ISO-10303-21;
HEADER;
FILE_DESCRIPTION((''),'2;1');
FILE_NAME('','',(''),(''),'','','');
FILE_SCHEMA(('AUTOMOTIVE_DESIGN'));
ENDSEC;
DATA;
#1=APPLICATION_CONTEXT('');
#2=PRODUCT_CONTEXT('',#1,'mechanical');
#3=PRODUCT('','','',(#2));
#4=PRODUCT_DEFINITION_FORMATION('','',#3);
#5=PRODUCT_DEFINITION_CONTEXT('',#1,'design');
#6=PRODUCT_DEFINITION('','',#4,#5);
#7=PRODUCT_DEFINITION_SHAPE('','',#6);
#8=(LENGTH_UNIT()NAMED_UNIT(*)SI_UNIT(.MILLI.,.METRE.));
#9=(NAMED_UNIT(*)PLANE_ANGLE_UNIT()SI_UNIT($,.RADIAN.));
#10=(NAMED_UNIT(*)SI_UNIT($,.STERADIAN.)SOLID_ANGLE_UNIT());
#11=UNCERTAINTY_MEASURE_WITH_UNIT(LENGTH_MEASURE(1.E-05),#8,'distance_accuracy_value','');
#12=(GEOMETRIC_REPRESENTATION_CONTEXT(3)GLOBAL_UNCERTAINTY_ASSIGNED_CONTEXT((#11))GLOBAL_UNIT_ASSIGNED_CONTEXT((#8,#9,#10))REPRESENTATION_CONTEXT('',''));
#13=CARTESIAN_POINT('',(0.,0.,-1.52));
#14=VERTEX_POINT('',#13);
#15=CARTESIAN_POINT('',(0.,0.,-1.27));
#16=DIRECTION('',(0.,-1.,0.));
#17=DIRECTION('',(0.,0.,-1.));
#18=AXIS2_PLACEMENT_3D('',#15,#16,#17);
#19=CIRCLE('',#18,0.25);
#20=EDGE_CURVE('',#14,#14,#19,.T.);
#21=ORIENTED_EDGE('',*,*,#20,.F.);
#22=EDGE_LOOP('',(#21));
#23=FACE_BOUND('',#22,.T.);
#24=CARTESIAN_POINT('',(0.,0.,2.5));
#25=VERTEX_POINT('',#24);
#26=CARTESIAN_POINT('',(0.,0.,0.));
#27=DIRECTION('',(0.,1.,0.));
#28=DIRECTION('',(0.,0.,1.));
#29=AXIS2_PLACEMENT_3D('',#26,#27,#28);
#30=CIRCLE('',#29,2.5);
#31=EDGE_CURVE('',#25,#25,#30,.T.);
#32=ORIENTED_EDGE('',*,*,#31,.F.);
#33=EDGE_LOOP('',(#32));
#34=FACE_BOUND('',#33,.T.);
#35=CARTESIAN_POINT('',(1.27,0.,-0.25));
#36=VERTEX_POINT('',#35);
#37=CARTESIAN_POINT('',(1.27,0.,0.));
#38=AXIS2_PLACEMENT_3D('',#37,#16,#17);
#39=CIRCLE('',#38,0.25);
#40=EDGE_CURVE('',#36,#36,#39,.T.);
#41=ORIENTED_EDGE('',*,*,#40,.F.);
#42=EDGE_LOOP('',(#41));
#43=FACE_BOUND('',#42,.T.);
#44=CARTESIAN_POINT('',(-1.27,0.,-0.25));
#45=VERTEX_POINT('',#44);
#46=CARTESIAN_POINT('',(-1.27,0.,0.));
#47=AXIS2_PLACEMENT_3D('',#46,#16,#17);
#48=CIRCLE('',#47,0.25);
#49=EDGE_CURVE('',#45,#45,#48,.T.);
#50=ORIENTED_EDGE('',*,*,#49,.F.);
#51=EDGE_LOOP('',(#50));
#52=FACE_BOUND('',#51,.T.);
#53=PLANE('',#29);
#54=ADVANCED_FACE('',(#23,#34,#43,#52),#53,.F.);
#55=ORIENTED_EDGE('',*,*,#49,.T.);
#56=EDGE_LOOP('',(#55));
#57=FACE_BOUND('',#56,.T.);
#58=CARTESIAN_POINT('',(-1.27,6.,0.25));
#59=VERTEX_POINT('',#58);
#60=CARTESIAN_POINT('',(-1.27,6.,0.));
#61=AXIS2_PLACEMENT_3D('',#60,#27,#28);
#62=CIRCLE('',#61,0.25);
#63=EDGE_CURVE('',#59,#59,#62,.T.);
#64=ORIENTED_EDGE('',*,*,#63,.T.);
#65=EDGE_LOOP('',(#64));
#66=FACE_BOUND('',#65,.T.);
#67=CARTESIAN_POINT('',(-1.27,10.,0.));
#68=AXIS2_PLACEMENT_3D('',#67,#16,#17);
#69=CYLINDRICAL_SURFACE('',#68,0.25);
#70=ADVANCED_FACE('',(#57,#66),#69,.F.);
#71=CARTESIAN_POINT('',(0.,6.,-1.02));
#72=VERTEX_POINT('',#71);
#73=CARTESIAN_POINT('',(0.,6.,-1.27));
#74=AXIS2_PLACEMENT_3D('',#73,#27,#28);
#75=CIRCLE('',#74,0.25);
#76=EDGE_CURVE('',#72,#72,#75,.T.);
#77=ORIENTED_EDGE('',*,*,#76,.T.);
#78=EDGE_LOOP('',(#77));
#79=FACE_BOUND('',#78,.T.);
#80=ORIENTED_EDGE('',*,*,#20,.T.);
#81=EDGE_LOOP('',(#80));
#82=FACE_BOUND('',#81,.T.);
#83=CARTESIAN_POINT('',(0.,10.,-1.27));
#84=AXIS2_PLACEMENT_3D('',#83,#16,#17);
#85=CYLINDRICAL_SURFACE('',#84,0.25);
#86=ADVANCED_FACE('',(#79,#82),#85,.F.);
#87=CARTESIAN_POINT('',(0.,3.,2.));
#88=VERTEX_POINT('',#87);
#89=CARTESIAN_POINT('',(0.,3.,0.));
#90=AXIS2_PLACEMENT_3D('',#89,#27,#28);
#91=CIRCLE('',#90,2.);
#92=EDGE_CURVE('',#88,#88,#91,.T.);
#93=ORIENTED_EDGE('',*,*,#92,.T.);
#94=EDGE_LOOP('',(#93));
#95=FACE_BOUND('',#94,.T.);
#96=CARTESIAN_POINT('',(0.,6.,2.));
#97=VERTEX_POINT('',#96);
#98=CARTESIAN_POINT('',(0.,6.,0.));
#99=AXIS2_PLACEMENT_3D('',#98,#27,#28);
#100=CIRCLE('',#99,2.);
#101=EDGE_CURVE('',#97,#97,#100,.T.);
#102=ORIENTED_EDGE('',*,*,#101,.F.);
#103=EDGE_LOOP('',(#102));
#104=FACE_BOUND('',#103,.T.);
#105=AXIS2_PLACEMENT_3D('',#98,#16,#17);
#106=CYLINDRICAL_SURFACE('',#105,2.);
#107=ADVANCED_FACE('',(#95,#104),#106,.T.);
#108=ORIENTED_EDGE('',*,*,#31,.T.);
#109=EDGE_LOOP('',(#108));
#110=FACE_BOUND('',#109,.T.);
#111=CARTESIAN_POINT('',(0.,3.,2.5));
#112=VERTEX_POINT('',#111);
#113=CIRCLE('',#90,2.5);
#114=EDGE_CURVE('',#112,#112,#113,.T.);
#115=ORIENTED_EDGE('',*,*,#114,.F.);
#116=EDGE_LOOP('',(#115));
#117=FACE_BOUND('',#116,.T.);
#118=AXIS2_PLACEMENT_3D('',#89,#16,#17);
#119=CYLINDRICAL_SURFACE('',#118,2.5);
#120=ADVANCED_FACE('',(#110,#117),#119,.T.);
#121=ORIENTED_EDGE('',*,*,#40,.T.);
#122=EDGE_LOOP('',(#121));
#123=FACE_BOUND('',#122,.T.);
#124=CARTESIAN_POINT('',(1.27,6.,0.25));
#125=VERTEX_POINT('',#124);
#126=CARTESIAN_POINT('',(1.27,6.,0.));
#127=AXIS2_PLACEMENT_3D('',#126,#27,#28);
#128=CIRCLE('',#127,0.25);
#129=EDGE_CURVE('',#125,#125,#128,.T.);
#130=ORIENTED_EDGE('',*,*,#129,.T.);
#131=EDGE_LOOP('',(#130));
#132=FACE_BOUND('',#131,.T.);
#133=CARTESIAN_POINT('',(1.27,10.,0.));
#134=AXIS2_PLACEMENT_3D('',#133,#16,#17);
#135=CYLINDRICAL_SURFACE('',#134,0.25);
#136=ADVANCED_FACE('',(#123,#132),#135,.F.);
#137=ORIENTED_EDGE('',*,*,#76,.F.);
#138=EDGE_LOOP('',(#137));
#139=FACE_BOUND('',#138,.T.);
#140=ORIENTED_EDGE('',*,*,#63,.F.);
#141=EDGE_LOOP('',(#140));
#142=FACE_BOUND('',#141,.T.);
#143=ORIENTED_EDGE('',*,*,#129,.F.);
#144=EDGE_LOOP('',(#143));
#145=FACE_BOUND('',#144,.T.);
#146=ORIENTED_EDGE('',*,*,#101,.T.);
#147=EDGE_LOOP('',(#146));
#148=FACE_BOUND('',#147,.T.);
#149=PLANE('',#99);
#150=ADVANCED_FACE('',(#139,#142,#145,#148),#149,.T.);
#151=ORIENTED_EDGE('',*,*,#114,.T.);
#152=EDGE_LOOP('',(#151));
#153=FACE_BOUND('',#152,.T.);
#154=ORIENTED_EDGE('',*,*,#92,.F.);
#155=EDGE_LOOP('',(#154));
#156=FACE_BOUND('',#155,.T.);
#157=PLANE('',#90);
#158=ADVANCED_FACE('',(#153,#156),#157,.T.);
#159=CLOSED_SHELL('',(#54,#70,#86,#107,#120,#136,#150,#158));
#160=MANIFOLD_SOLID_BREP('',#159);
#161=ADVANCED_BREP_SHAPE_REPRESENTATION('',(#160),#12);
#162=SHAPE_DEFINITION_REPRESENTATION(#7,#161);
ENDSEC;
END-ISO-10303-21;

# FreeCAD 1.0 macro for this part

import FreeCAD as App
import Part
import Sketcher

doc = App.newDocument("Part")
params = doc.addObject("Spreadsheet::Sheet", "Params")
for row, (alias, value) in enumerate([
    ("sketch1_diameter", "5 mm"),
    ("pad1_length", "3 mm"),
    ("sketch2_diameter", "4 mm"),
    ("pad2_length", "3 mm"),
    ("sketch3_diameter", "0.5 mm"),
    ("pocket1_length", "10 mm"),
], start=1):
    params.set(f"A{row}", alias)
    params.set(f"B{row}", "=" + value)
    params.setAlias(f"B{row}", alias)

body = doc.addObject("PartDesign::Body", "Body")

sketch1 = body.newObject("Sketcher::SketchObject", "Sketch")
sketch1.AttachmentSupport = (doc.getObject("XZ_Plane"), [""])
sketch1.MapMode = "FlatFace"
sketch1.addGeometry(Part.Circle(App.Vector(0, 0, 0), App.Vector(0, 0, 1), 2.5), False)
sketch1.addConstraint([
    Sketcher.Constraint("Coincident", 0, 3, -1, 1),
    Sketcher.Constraint("Diameter", 0, 5.0),
])
sketch1.setExpression("Constraints[1]", "Params.sketch1_diameter")
pad1 = body.newObject("PartDesign::Pad", "Pad")
pad1.Profile = sketch1
pad1.setExpression("Length", "Params.pad1_length")
pad1.Reversed = True

sketch2 = body.newObject("Sketcher::SketchObject", "Sketch001")
sketch2.AttachmentSupport = (doc.getObject("XZ_Plane"), [""])
sketch2.MapMode = "FlatFace"
sketch2.AttachmentOffset = App.Placement(App.Vector(0, 0, -3), App.Rotation())
sketch2.addGeometry(Part.Circle(App.Vector(0, 0, 0), App.Vector(0, 0, 1), 2), False)
sketch2.addConstraint([
    Sketcher.Constraint("Coincident", 0, 3, -1, 1),
    Sketcher.Constraint("Diameter", 0, 4.0),
])
sketch2.setExpression("Constraints[1]", "Params.sketch2_diameter")
pad2 = body.newObject("PartDesign::Pad", "Pad001")
pad2.Profile = sketch2
pad2.setExpression("Length", "Params.pad2_length")
pad2.Reversed = True

sketch3 = body.newObject("Sketcher::SketchObject", "Sketch002")
sketch3.AttachmentSupport = (doc.getObject("XZ_Plane"), [""])
sketch3.MapMode = "FlatFace"
sketch3.addGeometry([
    Part.Circle(App.Vector(0, -1.27, 0), App.Vector(0, 0, 1), 0.25),
    Part.Circle(App.Vector(1.27, 0, 0), App.Vector(0, 0, 1), 0.25),
    Part.Circle(App.Vector(-1.27, 0, 0), App.Vector(0, 0, 1), 0.25),
], False)
sketch3.addConstraint([
    Sketcher.Constraint("Equal", 0, 1),
    Sketcher.Constraint("Equal", 1, 2),
    Sketcher.Constraint("Symmetric", 1, 3, 2, 3, -1, 1),
    Sketcher.Constraint("PointOnObject", 0, 3, -2),
    Sketcher.Constraint("PointOnObject", 1, 3, -1),
    Sketcher.Constraint("Diameter", 0, 0.5),
    Sketcher.Constraint("DistanceY", 0, 3, -1, 1, 1.27),
    Sketcher.Constraint("DistanceX", -1, 1, 1, 3, 1.27),
])
sketch3.setExpression("Constraints[5]", "Params.sketch3_diameter")
pocket1 = body.newObject("PartDesign::Pocket", "Pocket")
pocket1.Profile = sketch3
pocket1.setExpression("Length", "Params.pocket1_length")

doc.recompute()
